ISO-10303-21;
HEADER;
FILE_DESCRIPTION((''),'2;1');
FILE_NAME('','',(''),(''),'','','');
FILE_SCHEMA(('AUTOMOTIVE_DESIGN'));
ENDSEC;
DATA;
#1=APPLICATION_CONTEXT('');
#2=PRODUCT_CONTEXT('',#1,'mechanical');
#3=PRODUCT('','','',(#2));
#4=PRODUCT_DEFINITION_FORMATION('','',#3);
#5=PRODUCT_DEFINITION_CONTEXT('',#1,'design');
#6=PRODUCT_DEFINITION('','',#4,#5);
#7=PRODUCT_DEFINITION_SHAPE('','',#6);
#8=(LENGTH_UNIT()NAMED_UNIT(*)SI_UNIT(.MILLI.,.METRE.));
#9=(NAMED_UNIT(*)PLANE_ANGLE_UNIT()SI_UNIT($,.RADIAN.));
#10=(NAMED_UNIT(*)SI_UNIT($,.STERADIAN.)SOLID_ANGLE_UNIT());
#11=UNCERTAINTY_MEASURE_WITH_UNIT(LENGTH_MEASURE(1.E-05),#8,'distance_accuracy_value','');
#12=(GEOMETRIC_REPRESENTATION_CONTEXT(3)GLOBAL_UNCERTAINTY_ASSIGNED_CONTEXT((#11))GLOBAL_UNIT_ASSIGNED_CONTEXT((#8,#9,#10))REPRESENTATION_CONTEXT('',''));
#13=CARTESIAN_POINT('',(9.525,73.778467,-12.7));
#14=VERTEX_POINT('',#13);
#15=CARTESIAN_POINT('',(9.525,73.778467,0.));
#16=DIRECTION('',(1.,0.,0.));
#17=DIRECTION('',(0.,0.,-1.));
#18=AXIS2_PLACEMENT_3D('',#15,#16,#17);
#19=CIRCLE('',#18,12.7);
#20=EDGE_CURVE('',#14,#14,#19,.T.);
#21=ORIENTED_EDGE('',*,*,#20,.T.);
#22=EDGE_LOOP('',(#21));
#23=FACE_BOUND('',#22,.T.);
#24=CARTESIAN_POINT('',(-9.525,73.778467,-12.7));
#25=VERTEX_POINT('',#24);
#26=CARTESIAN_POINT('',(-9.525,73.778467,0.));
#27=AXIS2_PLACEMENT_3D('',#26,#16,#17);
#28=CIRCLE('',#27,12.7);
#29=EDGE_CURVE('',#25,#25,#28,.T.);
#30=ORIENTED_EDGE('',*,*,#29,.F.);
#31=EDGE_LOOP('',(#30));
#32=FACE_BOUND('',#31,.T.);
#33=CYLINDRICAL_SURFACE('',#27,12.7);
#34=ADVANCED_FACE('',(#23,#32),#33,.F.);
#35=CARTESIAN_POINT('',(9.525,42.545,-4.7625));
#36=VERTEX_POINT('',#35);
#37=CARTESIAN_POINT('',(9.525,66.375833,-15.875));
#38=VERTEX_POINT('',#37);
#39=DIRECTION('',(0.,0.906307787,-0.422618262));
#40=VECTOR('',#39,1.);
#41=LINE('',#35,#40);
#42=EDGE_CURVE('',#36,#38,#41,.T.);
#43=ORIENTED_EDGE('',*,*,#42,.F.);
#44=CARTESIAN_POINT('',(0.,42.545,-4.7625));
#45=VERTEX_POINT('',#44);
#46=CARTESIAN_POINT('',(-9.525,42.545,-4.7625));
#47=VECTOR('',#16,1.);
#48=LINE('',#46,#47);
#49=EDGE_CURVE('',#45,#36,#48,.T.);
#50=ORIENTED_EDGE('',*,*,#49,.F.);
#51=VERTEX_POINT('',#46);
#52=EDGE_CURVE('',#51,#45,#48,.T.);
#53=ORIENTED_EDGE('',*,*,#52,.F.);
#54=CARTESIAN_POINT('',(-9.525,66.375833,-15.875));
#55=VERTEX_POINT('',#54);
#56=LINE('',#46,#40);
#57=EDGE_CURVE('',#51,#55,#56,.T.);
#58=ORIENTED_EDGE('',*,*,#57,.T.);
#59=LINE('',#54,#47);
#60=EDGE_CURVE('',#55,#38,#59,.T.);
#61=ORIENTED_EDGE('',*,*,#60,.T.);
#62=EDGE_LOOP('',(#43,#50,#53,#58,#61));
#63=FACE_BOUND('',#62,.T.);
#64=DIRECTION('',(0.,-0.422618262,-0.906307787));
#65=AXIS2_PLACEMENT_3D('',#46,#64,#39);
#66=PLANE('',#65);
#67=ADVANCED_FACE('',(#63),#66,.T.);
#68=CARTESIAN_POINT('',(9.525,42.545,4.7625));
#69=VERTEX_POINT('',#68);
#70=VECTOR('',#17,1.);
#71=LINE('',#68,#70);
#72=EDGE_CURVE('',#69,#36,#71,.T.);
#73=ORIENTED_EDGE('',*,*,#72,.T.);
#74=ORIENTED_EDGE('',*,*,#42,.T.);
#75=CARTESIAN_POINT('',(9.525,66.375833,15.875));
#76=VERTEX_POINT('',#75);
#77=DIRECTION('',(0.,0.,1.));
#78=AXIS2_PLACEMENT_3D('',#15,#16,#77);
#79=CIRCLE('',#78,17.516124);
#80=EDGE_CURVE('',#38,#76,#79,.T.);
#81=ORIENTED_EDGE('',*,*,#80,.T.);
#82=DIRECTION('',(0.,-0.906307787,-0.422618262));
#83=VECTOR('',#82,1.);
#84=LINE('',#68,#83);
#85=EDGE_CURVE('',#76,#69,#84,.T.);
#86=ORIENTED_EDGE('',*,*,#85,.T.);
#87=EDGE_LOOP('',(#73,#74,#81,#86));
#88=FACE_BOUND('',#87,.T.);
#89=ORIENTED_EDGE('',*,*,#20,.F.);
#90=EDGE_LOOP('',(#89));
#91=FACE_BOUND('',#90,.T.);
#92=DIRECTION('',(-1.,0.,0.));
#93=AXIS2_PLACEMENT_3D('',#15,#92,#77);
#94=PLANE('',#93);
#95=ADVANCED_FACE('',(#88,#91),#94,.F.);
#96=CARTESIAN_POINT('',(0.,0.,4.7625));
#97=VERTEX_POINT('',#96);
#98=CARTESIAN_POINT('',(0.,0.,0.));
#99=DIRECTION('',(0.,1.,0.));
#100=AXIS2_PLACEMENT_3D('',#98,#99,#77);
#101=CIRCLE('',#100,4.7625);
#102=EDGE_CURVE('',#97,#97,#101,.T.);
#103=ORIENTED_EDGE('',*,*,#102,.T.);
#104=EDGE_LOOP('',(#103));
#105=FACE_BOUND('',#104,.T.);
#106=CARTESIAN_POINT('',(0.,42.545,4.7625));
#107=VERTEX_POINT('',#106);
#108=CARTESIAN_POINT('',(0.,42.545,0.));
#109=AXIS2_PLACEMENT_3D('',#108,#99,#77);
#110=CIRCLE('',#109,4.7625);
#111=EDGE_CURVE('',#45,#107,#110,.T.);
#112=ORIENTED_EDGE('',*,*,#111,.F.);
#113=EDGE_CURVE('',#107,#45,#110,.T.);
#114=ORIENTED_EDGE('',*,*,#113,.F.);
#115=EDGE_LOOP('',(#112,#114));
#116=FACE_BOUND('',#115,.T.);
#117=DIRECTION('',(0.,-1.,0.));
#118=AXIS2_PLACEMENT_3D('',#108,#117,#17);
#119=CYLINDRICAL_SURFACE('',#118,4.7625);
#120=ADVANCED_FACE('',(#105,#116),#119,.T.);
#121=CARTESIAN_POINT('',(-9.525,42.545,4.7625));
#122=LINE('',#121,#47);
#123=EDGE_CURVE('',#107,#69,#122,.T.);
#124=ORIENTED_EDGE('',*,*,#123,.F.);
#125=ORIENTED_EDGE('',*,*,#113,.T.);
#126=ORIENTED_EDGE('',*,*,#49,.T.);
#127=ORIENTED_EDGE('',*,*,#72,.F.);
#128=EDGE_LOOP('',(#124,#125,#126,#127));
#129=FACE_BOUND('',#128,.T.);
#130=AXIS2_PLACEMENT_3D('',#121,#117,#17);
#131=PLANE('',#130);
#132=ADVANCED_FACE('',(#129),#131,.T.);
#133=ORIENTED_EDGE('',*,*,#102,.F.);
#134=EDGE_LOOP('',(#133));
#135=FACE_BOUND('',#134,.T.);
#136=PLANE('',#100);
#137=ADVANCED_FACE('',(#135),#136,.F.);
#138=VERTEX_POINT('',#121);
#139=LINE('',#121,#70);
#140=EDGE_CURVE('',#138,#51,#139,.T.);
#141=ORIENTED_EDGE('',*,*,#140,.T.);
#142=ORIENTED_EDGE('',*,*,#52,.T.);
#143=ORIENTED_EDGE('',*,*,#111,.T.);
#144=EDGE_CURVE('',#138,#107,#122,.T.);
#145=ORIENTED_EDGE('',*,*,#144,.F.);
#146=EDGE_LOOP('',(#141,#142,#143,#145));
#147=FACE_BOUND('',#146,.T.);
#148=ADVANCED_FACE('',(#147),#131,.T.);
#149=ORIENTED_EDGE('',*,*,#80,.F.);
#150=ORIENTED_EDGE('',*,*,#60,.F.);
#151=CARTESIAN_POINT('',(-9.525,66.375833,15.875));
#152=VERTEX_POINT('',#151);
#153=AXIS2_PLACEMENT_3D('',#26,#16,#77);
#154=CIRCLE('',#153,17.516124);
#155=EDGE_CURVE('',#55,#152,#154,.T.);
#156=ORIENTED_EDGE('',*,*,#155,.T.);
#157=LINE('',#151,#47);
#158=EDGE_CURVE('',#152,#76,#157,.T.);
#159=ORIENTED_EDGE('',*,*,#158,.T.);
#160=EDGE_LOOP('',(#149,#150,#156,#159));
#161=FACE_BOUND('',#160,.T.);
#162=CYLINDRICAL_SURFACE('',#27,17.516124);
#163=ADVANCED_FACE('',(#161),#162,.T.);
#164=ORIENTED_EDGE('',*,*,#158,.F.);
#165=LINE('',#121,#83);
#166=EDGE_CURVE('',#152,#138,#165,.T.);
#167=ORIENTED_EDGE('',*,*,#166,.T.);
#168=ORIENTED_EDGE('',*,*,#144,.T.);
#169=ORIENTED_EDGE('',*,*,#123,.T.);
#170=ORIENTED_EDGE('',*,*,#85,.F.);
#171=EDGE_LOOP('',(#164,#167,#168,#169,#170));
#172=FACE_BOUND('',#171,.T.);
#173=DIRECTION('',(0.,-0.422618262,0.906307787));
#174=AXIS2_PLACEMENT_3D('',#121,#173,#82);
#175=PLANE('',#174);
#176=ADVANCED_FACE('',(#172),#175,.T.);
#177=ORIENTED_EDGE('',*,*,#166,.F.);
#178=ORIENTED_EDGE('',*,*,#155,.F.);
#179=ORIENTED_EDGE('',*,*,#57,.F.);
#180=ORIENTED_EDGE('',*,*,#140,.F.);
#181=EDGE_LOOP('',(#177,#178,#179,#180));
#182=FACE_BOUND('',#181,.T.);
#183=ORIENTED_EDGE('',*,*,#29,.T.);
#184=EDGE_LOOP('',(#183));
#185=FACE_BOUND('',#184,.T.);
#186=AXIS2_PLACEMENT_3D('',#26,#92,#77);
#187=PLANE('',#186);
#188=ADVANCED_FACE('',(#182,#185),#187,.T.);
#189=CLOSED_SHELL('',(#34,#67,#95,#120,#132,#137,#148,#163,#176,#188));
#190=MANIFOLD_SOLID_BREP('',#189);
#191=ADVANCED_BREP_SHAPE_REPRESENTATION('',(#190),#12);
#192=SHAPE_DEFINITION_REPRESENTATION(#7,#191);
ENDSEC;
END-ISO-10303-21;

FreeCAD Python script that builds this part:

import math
import FreeCAD as App
import Part
import Sketcher
from FreeCAD import Vector
Q = App.Units.Quantity

doc = App.newDocument("Part")
params = doc.addObject("Spreadsheet::Sheet", "Params")
for row, (alias, value) in enumerate([
    ("sketch1_diameter", "0.375 in"),
    ("pad1_length", "1.675 in"),
    ("sketch2_diameter", "1 in"),
    ("sketch2_height", "0.375 in"),
    ("pad2_length", "0.375 in"),
    ("pad2_length2", "0.375 in"),
], start=1):
    params.set(f"A{row}", alias)
    params.set(f"B{row}", "=" + value)
    params.setAlias(f"B{row}", alias)

body = doc.addObject("PartDesign::Body", "Body")

# Sketch on XZ plane
sketch1 = doc.addObject("Sketcher::SketchObject", "Sketch")
body.addObject(sketch1)
sketch1.AttachmentSupport = (doc.XZ_Plane, [""])
sketch1.MapMode = "FlatFace"
sketch1.addGeometry(Part.Circle(Vector(0, 0, 0), Vector(0, 0, 1), 4.7625), False)
sketch1.addConstraint([
    Sketcher.Constraint("Coincident", 0, 3, -1, 1),
    Sketcher.Constraint("Diameter", 0, Q("0.375 in")),
])
sketch1.setExpression("Constraints[1]", "Params.sketch1_diameter")
pad1 = doc.addObject("PartDesign::Pad", "Pad")
body.addObject(pad1)
pad1.Profile = sketch1
pad1.setExpression("Length", "Params.pad1_length")
pad1.Reversed = True

# Sketch on YZ plane
sketch2 = doc.addObject("Sketcher::SketchObject", "Sketch001")
body.addObject(sketch2)
sketch2.AttachmentSupport = (doc.YZ_Plane, [""])
sketch2.MapMode = "FlatFace"
sketch2.addGeometry([
    Part.LineSegment(Vector(66.375833, 15.875, 0), Vector(42.545, 4.7625, 0)),  # 0
    Part.LineSegment(Vector(42.545, 4.7625, 0), Vector(42.545, -4.7625, 0)),  # 1
    Part.LineSegment(Vector(42.545, -4.7625, 0), Vector(66.375833, -15.875, 0)),  # 2
    Part.ArcOfCircle(Part.Circle(Vector(73.778467, 0, 0), Vector(0, 0, 1), 17.516124), math.radians(-115), math.radians(115)),  # 3
    Part.Circle(Vector(73.778467, 0, 0), Vector(0, 0, 1), 12.7),  # 4
], False)
sketch2.addConstraint([
    Sketcher.Constraint("Coincident", 0, 2, 1, 1),
    Sketcher.Constraint("Coincident", 1, 2, 2, 1),
    Sketcher.Constraint("Tangent", 2, 2, 3, 1),
    Sketcher.Constraint("Tangent", 3, 2, 0, 1),
    Sketcher.Constraint("Vertical", 1),
    Sketcher.Constraint("Coincident", 4, 3, 3, 3),
    Sketcher.Constraint("Symmetric", 2, 2, 3, 2, -1),
    Sketcher.Constraint("Diameter", 4, Q("1 in")),
    Sketcher.Constraint("Angle", 0, Q("-155 deg")),
    Sketcher.Constraint("DistanceY", 1, 2, 1, 1, Q("0.375 in")),
    Sketcher.Constraint("DistanceY", 2, 2, 3, 2, Q("1.25 in")),
    Sketcher.Constraint("DistanceX", -1, 1, 0, 2, Q("1.675 in")),
])
sketch2.setExpression("Constraints[7]", "Params.sketch2_diameter")
sketch2.setExpression("Constraints[9]", "Params.sketch2_height")
pad2 = doc.addObject("PartDesign::Pad", "Pad001")
body.addObject(pad2)
pad2.Profile = sketch2
pad2.Type = "TwoLengths"
pad2.setExpression("Length", "Params.pad2_length")
pad2.setExpression("Length2", "Params.pad2_length2")

doc.recompute()
